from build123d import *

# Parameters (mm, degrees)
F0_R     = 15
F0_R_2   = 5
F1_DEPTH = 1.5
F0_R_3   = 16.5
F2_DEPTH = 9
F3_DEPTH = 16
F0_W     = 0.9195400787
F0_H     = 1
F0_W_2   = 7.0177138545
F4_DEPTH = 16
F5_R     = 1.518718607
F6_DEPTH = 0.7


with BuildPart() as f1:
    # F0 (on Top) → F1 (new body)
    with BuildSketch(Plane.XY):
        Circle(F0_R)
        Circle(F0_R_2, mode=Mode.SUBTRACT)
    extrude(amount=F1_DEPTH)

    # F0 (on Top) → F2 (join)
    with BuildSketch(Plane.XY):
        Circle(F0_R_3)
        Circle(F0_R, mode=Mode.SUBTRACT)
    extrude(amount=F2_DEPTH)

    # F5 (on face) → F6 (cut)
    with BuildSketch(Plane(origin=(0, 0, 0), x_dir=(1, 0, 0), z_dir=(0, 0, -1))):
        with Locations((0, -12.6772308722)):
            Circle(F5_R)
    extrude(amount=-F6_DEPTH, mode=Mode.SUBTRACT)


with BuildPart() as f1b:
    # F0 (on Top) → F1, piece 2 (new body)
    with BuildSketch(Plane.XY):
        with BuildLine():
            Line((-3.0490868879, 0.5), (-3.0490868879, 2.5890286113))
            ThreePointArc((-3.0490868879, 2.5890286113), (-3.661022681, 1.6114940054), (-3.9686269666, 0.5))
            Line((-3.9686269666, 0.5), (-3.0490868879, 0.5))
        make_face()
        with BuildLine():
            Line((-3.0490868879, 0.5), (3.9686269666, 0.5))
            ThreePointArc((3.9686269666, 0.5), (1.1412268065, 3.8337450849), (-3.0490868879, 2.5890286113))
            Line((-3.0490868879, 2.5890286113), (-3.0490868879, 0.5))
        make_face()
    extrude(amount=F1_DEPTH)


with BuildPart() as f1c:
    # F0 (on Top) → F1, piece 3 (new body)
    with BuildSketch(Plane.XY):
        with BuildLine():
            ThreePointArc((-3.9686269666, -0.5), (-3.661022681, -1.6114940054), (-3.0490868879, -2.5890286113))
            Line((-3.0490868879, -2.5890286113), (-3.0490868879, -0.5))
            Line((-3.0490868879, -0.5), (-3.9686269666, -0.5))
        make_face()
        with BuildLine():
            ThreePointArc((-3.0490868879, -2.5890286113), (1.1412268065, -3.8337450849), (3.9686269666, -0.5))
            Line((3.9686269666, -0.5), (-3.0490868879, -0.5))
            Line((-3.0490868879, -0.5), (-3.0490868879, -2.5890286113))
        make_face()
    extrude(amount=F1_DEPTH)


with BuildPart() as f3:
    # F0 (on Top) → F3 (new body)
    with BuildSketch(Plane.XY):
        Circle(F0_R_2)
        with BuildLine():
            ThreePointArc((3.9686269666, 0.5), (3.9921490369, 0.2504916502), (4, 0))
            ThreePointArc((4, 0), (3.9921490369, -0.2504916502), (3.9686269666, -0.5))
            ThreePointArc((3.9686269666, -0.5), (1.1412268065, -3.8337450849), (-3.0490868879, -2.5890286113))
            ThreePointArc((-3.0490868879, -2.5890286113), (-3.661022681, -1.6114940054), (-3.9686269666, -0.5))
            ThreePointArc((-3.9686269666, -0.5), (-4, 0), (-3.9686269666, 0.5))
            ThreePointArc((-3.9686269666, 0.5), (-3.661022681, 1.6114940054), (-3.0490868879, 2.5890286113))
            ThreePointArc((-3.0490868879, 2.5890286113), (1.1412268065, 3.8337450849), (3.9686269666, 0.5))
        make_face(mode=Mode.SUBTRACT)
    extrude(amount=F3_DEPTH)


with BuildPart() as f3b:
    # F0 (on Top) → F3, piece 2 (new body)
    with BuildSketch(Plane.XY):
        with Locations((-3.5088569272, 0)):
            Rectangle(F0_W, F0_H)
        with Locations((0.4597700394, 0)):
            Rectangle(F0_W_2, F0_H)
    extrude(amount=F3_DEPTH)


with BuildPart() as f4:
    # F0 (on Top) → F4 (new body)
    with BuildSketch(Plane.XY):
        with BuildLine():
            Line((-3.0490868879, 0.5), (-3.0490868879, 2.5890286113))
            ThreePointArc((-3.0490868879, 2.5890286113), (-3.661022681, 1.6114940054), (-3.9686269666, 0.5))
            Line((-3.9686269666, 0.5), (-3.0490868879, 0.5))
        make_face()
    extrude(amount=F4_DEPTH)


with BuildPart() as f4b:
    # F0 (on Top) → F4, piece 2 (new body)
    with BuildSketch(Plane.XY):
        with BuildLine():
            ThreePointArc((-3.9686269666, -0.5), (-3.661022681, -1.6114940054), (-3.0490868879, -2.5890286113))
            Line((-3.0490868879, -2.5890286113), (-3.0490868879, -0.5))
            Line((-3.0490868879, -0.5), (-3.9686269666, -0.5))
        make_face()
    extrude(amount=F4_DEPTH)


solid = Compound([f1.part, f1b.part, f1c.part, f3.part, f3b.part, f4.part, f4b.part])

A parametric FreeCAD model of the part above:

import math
import FreeCAD as App
import Part
import Sketcher

V = App.Vector

doc = App.newDocument("Part")
body = doc.addObject("PartDesign::Body", "Body")

sketch1 = doc.addObject("Sketcher::SketchObject", "Sketch")
body.addObject(sketch1)
sketch1.AttachmentSupport = (doc.XY_Plane, [""])
sketch1.MapMode = "FlatFace"
sketch1.addGeometry([
    Part.Circle(V(0, 0, 0), V(0, 0, 1), 15),
    Part.Circle(V(0, 0, 0), V(0, 0, 1), 5),
], False)
sketch1.addConstraint([
    Sketcher.Constraint("Coincident", 0, 3, -1, 1),
    Sketcher.Constraint("Coincident", 1, 3, -1, 1),
    Sketcher.Constraint("Diameter", 0, 30.0),
    Sketcher.Constraint("Diameter", 1, 10.0),
])
pad1 = doc.addObject("PartDesign::Pad", "Pad")
body.addObject(pad1)
pad1.Profile = sketch1
pad1.Length = 1.5

sketch2 = doc.addObject("Sketcher::SketchObject", "Sketch001")
body.addObject(sketch2)
sketch2.AttachmentSupport = (doc.XY_Plane, [""])
sketch2.MapMode = "FlatFace"
sketch2.addGeometry([
    Part.Circle(V(0, 0, 0), V(0, 0, 1), 16.5),
    Part.Circle(V(0, 0, 0), V(0, 0, 1), 15),
], False)
sketch2.addConstraint([
    Sketcher.Constraint("Coincident", 0, 3, -1, 1),
    Sketcher.Constraint("Coincident", 1, 3, -1, 1),
    Sketcher.Constraint("Diameter", 0, 33.0),
    Sketcher.Constraint("Diameter", 1, 30.0),
])
pad2 = doc.addObject("PartDesign::Pad", "Pad001")
body.addObject(pad2)
pad2.Profile = sketch2
pad2.Length = 9

sketch3 = doc.addObject("Sketcher::SketchObject", "Sketch002")
body.addObject(sketch3)
sketch3.AttachmentSupport = (doc.XY_Plane, [""])
sketch3.MapMode = "FlatFace"
sketch3.addGeometry(Part.Circle(V(0, 12.677231, 0), V(0, 0, 1), 1.518719), False)
sketch3.addConstraint([
    Sketcher.Constraint("PointOnObject", 0, 3, -2),
    Sketcher.Constraint("Diameter", 0, 3.037437),
    Sketcher.Constraint("DistanceY", -1, 1, 0, 3, 12.677231),
])
pocket1 = doc.addObject("PartDesign::Pocket", "Pocket")
body.addObject(pocket1)
pocket1.Profile = sketch3
pocket1.Length = 0.7
pocket1.Reversed = True
body2 = doc.addObject("PartDesign::Body", "Body001")

sketch4 = doc.addObject("Sketcher::SketchObject", "Sketch003")
body2.addObject(sketch4)
sketch4.AttachmentSupport = (doc.getObject("XY_Plane001"), [""])
sketch4.MapMode = "FlatFace"
sketch4.addGeometry([
    Part.ArcOfCircle(Part.Circle(V(0, 0, 0), V(0, 0, 1), 4), math.radians(139.664879), math.radians(172.819244)),
    Part.LineSegment(V(-3.968627, 0.5, 0), V(3.968627, 0.5, 0)),
    Part.ArcOfCircle(Part.Circle(V(0, 0, 0), V(0, 0, 1), 4), math.radians(7.180756), math.radians(139.664879)),
], False)
sketch4.addConstraint([
    Sketcher.Constraint("Coincident", 0, 2, 1, 1),
    Sketcher.Constraint("Coincident", 1, 2, 2, 1),
    Sketcher.Constraint("Tangent", 2, 2, 0, 1),
    Sketcher.Constraint("Horizontal", 1),
    Sketcher.Constraint("Coincident", 0, 3, -1, 1),
    Sketcher.Constraint("Equal", 0, 2),
    Sketcher.Constraint("Radius", 0, 4.0),
    Sketcher.Constraint("DistanceY", -1, 1, 0, 2, 0.5),
    Sketcher.Constraint("DistanceY", -1, 1, 2, 2, 2.589029),
])
pad3 = doc.addObject("PartDesign::Pad", "Pad002")
body2.addObject(pad3)
pad3.Profile = sketch4
pad3.Length = 1.5
body3 = doc.addObject("PartDesign::Body", "Body002")

sketch5 = doc.addObject("Sketcher::SketchObject", "Sketch004")
body3.addObject(sketch5)
sketch5.AttachmentSupport = (doc.getObject("XY_Plane002"), [""])
sketch5.MapMode = "FlatFace"
sketch5.addGeometry([
    Part.ArcOfCircle(Part.Circle(V(0, 0, 0), V(0, 0, 1), 4), math.radians(-172.819244), math.radians(-139.664879)),
    Part.ArcOfCircle(Part.Circle(V(0, 0, 0), V(0, 0, 1), 4), math.radians(-139.664879), math.radians(-7.180756)),
    Part.LineSegment(V(3.968627, -0.5, 0), V(-3.968627, -0.5, 0)),
], False)
sketch5.addConstraint([
    Sketcher.Constraint("Tangent", 0, 2, 1, 1),
    Sketcher.Constraint("Coincident", 1, 2, 2, 1),
    Sketcher.Constraint("Coincident", 2, 2, 0, 1),
    Sketcher.Constraint("Horizontal", 2),
    Sketcher.Constraint("Coincident", 0, 3, -1, 1),
    Sketcher.Constraint("Equal", 0, 1),
    Sketcher.Constraint("Radius", 0, 4.0),
    Sketcher.Constraint("DistanceY", 1, 2, -1, 1, 0.5),
    Sketcher.Constraint("DistanceY", 0, 2, -1, 1, 2.589029),
])
pad4 = doc.addObject("PartDesign::Pad", "Pad003")
body3.addObject(pad4)
pad4.Profile = sketch5
pad4.Length = 1.5
body4 = doc.addObject("PartDesign::Body", "Body003")

sketch6 = doc.addObject("Sketcher::SketchObject", "Sketch005")
body4.addObject(sketch6)
sketch6.AttachmentSupport = (doc.getObject("XY_Plane003"), [""])
sketch6.MapMode = "FlatFace"
sketch6.addGeometry([
    Part.Circle(V(0, 0, 0), V(0, 0, 1), 5),
    Part.ArcOfCircle(Part.Circle(V(0, 0, 0), V(0, 0, 1), 4), math.radians(7.180756), math.radians(139.664879)),
    Part.ArcOfCircle(Part.Circle(V(0, 0, 0), V(0, 0, 1), 4), math.radians(0), math.radians(7.180756)),
    Part.ArcOfCircle(Part.Circle(V(0, 0, 0), V(0, 0, 1), 4), math.radians(-7.180756), math.radians(0)),
    Part.ArcOfCircle(Part.Circle(V(0, 0, 0), V(0, 0, 1), 4), math.radians(-139.664879), math.radians(-7.180756)),
    Part.ArcOfCircle(Part.Circle(V(0, 0, 0), V(0, 0, 1), 4), math.radians(-172.819244), math.radians(-139.664879)),
    Part.ArcOfCircle(Part.Circle(V(0, 0, 0), V(0, 0, 1), 4), math.radians(172.819244), math.radians(187.180756)),
    Part.ArcOfCircle(Part.Circle(V(0, 0, 0), V(0, 0, 1), 4), math.radians(139.664879), math.radians(172.819244)),
], False)
sketch6.addConstraint([
    Sketcher.Constraint("Tangent", 1, 1, 2, 2),
    Sketcher.Constraint("Tangent", 2, 1, 3, 2),
    Sketcher.Constraint("Tangent", 3, 1, 4, 2),
    Sketcher.Constraint("Tangent", 4, 1, 5, 2),
    Sketcher.Constraint("Tangent", 5, 1, 6, 2),
    Sketcher.Constraint("Tangent", 6, 1, 7, 2),
    Sketcher.Constraint("Tangent", 7, 1, 1, 2),
    Sketcher.Constraint("Coincident", 0, 3, -1, 1),
    Sketcher.Constraint("Coincident", 1, 3, -1, 1),
    Sketcher.Constraint("Coincident", 3, 3, -1, 1),
    Sketcher.Constraint("Coincident", 5, 3, -1, 1),
    Sketcher.Constraint("PointOnObject", 2, 1, -1),
    Sketcher.Constraint("Horizontal", 3, 1, 5, 1),
    Sketcher.Constraint("Horizontal", 1, 1, 6, 1),
    Sketcher.Constraint("Vertical", 1, 1, 3, 1),
    Sketcher.Constraint("Vertical", 4, 1, 7, 1),
    Sketcher.Constraint("Diameter", 0, 10.0),
    Sketcher.Constraint("Radius", 1, 4.0),
    Sketcher.Constraint("DistanceY", 3, 1, 1, 1, 1.0),
    Sketcher.Constraint("DistanceY", 4, 1, -1, 1, 2.589029),
])
pad5 = doc.addObject("PartDesign::Pad", "Pad004")
body4.addObject(pad5)
pad5.Profile = sketch6
pad5.Length = 16
body5 = doc.addObject("PartDesign::Body", "Body004")

sketch7 = doc.addObject("Sketcher::SketchObject", "Sketch006")
body5.addObject(sketch7)
sketch7.AttachmentSupport = (doc.getObject("XY_Plane004"), [""])
sketch7.MapMode = "FlatFace"
sketch7.addGeometry([
    Part.LineSegment(V(-3.968627, 0.5, 0), V(-3.968627, -0.5, 0)),
    Part.LineSegment(V(-3.968627, -0.5, 0), V(3.968627, -0.5, 0)),
    Part.LineSegment(V(3.968627, -0.5, 0), V(3.968627, 0.5, 0)),
    Part.LineSegment(V(3.968627, 0.5, 0), V(-3.968627, 0.5, 0)),
], False)
sketch7.addConstraint([
    Sketcher.Constraint("Coincident", 0, 2, 1, 1),
    Sketcher.Constraint("Coincident", 1, 2, 2, 1),
    Sketcher.Constraint("Coincident", 2, 2, 3, 1),
    Sketcher.Constraint("Coincident", 3, 2, 0, 1),
    Sketcher.Constraint("Vertical", 0),
    Sketcher.Constraint("Horizontal", 1),
    Sketcher.Constraint("Vertical", 2),
    Sketcher.Constraint("Horizontal", 3),
    Sketcher.Constraint("Symmetric", 0, 2, 2, 2, -1, 1),
    Sketcher.Constraint("DistanceY", 0, 2, 0, 1, 1.0),
    Sketcher.Constraint("DistanceX", 1, 1, 1, 2, 7.937254),
])
pad6 = doc.addObject("PartDesign::Pad", "Pad005")
body5.addObject(pad6)
pad6.Profile = sketch7
pad6.Length = 16
body6 = doc.addObject("PartDesign::Body", "Body005")

sketch8 = doc.addObject("Sketcher::SketchObject", "Sketch007")
body6.addObject(sketch8)
sketch8.AttachmentSupport = (doc.getObject("XY_Plane005"), [""])
sketch8.MapMode = "FlatFace"
sketch8.addGeometry([
    Part.LineSegment(V(-3.049087, 0.5, 0), V(-3.049087, 2.589029, 0)),
    Part.ArcOfCircle(Part.Circle(V(0, 0, 0), V(0, 0, 1), 4), math.radians(139.664879), math.radians(172.819244)),
    Part.LineSegment(V(-3.968627, 0.5, 0), V(-3.049087, 0.5, 0)),
], False)
sketch8.addConstraint([
    Sketcher.Constraint("Coincident", 0, 2, 1, 1),
    Sketcher.Constraint("Coincident", 1, 2, 2, 1),
    Sketcher.Constraint("Coincident", 2, 2, 0, 1),
    Sketcher.Constraint("Vertical", 0),
    Sketcher.Constraint("Horizontal", 2),
    Sketcher.Constraint("Coincident", 1, 3, -1, 1),
    Sketcher.Constraint("Radius", 1, 4.0),
    Sketcher.Constraint("DistanceY", -1, 1, 1, 2, 0.5),
    Sketcher.Constraint("DistanceX", 2, 1, 2, 2, 0.91954),
])
pad7 = doc.addObject("PartDesign::Pad", "Pad006")
body6.addObject(pad7)
pad7.Profile = sketch8
pad7.Length = 16
body7 = doc.addObject("PartDesign::Body", "Body006")

sketch9 = doc.addObject("Sketcher::SketchObject", "Sketch008")
body7.addObject(sketch9)
sketch9.AttachmentSupport = (doc.getObject("XY_Plane006"), [""])
sketch9.MapMode = "FlatFace"
sketch9.addGeometry([
    Part.ArcOfCircle(Part.Circle(V(0, 0, 0), V(0, 0, 1), 4), math.radians(-172.819244), math.radians(-139.664879)),
    Part.LineSegment(V(-3.049087, -2.589029, 0), V(-3.049087, -0.5, 0)),
    Part.LineSegment(V(-3.049087, -0.5, 0), V(-3.968627, -0.5, 0)),
], False)
sketch9.addConstraint([
    Sketcher.Constraint("Coincident", 0, 2, 1, 1),
    Sketcher.Constraint("Coincident", 1, 2, 2, 1),
    Sketcher.Constraint("Coincident", 2, 2, 0, 1),
    Sketcher.Constraint("Vertical", 1),
    Sketcher.Constraint("Horizontal", 2),
    Sketcher.Constraint("Coincident", 0, 3, -1, 1),
    Sketcher.Constraint("Radius", 0, 4.0),
    Sketcher.Constraint("DistanceY", 1, 2, -1, 1, 0.5),
    Sketcher.Constraint("DistanceX", 2, 2, 2, 1, 0.91954),
])
pad8 = doc.addObject("PartDesign::Pad", "Pad007")
body7.addObject(pad8)
pad8.Profile = sketch9
pad8.Length = 16

doc.recompute()
